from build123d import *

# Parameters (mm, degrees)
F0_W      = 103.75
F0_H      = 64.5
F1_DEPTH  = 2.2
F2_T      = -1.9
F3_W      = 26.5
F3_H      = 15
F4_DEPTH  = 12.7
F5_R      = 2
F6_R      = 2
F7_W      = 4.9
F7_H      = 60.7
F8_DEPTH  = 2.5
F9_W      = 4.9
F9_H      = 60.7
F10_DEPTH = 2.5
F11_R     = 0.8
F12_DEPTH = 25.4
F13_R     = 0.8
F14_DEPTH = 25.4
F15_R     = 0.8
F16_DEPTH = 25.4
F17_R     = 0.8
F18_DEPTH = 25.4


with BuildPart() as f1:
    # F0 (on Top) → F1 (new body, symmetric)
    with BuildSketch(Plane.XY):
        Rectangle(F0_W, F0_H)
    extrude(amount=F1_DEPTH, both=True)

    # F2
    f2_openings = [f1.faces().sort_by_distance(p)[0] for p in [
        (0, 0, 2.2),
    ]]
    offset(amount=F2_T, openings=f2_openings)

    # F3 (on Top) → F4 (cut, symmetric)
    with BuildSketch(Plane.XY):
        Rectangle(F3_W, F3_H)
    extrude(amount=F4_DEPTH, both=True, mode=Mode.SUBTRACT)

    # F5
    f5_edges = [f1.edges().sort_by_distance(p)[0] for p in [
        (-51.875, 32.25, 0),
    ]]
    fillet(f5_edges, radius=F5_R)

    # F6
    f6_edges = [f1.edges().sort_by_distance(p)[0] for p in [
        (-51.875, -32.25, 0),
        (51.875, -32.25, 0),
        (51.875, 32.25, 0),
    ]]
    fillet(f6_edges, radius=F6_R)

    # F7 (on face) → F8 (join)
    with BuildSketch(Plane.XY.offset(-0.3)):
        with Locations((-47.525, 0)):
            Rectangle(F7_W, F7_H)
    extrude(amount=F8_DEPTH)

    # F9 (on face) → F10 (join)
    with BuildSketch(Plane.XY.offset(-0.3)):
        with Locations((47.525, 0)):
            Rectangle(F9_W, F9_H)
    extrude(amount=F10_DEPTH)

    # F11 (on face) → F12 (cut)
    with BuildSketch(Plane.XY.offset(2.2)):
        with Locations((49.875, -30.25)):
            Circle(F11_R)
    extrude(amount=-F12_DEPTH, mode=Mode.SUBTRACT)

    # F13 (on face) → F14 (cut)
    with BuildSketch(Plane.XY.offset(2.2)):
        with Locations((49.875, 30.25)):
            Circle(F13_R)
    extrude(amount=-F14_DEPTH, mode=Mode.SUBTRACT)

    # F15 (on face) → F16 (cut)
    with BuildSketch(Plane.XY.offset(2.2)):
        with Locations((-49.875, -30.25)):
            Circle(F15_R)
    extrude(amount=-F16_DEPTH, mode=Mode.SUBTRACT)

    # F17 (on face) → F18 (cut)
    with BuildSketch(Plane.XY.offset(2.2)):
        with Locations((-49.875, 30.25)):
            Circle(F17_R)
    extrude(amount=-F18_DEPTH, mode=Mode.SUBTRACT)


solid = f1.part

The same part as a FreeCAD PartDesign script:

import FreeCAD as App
import Part
import Sketcher

V = App.Vector
Q = App.Units.Quantity


def edges_at(feature, points):
    """Names of the edges that pass closest to the given points."""
    edges = feature.Shape.Edges
    near = lambda p: min(range(len(edges)), key=lambda i: edges[i].distToShape(Part.Vertex(*p))[0])
    return sorted({f"Edge{near(p) + 1}" for p in points})


def faces_at(feature, points):
    """Names of the faces that lie closest to the given points."""
    faces = feature.Shape.Faces
    near = lambda p: min(range(len(faces)), key=lambda i: faces[i].distToShape(Part.Vertex(*p))[0])
    return sorted({f"Face{near(p) + 1}" for p in points})

doc = App.newDocument("Part")
params = doc.addObject("Spreadsheet::Sheet", "Params")
for row, (alias, value) in enumerate([
    ("sketch1_height", "64.5 mm"),
    ("sketch1_width", "103.75 mm"),
    ("pad1_length", "4.4 mm"),
    ("thickness_wall", "1.9 mm"),
    ("sketch2_height", "15 mm"),
    ("sketch2_width", "26.5 mm"),
    ("pocket1_length", "25.4 mm"),
    ("fillet_radius", "2 mm"),
    ("fillet2_radius", "2 mm"),
    ("sketch3_width", "4.9 mm"),
    ("sketch3_height", "60.7 mm"),
    ("pad2_length", "2.5 mm"),
    ("sketch4_width", "4.9 mm"),
    ("sketch4_height", "60.7 mm"),
    ("pad3_length", "2.5 mm"),
    ("sketch5_diameter", "1.6 mm"),
    ("pocket2_length", "25.4 mm"),
    ("sketch6_diameter", "1.6 mm"),
    ("pocket3_length", "25.4 mm"),
    ("sketch7_diameter", "1.6 mm"),
    ("pocket4_length", "25.4 mm"),
    ("sketch8_diameter", "1.6 mm"),
    ("pocket5_length", "25.4 mm"),
], start=1):
    params.set(f"A{row}", alias)
    params.set(f"B{row}", "=" + value)
    params.setAlias(f"B{row}", alias)

body = doc.addObject("PartDesign::Body", "Body")

# Sketch on XY plane
sketch1 = body.newObject("Sketcher::SketchObject", "Sketch")
sketch1.AttachmentSupport = (doc.getObject("XY_Plane"), [""])
sketch1.MapMode = "FlatFace"
sketch1.addGeometry([
    Part.LineSegment(V(-52, 32, 0), V(-52, -32, 0)),
    Part.LineSegment(V(-52, -32, 0), V(52, -32, 0)),
    Part.LineSegment(V(52, -32, 0), V(52, 32, 0)),
    Part.LineSegment(V(52, 32, 0), V(-52, 32, 0)),
], False)
sketch1.addConstraint([
    Sketcher.Constraint("Coincident", 0, 2, 1, 1),
    Sketcher.Constraint("Coincident", 1, 2, 2, 1),
    Sketcher.Constraint("Coincident", 2, 2, 3, 1),
    Sketcher.Constraint("Coincident", 3, 2, 0, 1),
    Sketcher.Constraint("Vertical", 0),
    Sketcher.Constraint("Horizontal", 1),
    Sketcher.Constraint("Vertical", 2),
    Sketcher.Constraint("Horizontal", 3),
    Sketcher.Constraint("Symmetric", 0, 2, 2, 2, -1, 1),
    Sketcher.Constraint("DistanceY", 0, 2, 0, 1, Q("64.5 mm")),
    Sketcher.Constraint("DistanceX", 1, 1, 1, 2, Q("103.75 mm")),
])
sketch1.setExpression("Constraints[9]", "Params.sketch1_height")
sketch1.setExpression("Constraints[10]", "Params.sketch1_width")
pad1 = body.newObject("PartDesign::Pad", "Pad")
pad1.Profile = sketch1
pad1.setExpression("Length", "Params.pad1_length")
pad1.Midplane = True
doc.recompute()

thickness = body.newObject("PartDesign::Thickness", "Thickness")
thickness.Base = (pad1, faces_at(pad1, [(0, 0, 2.2)]))
thickness.setExpression("Value", "Params.thickness_wall")
thickness.Reversed = True
thickness.Join = "Arc"

# Sketch on XY plane
sketch2 = body.newObject("Sketcher::SketchObject", "Sketch001")
sketch2.AttachmentSupport = (doc.getObject("XY_Plane"), [""])
sketch2.MapMode = "FlatFace"
sketch2.addGeometry([
    Part.LineSegment(V(-13, 8, 0), V(-13, -8, 0)),
    Part.LineSegment(V(-13, -8, 0), V(13, -8, 0)),
    Part.LineSegment(V(13, -8, 0), V(13, 8, 0)),
    Part.LineSegment(V(13, 8, 0), V(-13, 8, 0)),
], False)
sketch2.addConstraint([
    Sketcher.Constraint("Coincident", 0, 2, 1, 1),
    Sketcher.Constraint("Coincident", 1, 2, 2, 1),
    Sketcher.Constraint("Coincident", 2, 2, 3, 1),
    Sketcher.Constraint("Coincident", 3, 2, 0, 1),
    Sketcher.Constraint("Vertical", 0),
    Sketcher.Constraint("Horizontal", 1),
    Sketcher.Constraint("Vertical", 2),
    Sketcher.Constraint("Horizontal", 3),
    Sketcher.Constraint("Symmetric", 0, 2, 2, 2, -1, 1),
    Sketcher.Constraint("DistanceY", 0, 2, 0, 1, Q("15 mm")),
    Sketcher.Constraint("DistanceX", 1, 1, 1, 2, Q("26.5 mm")),
])
sketch2.setExpression("Constraints[9]", "Params.sketch2_height")
sketch2.setExpression("Constraints[10]", "Params.sketch2_width")
pocket1 = body.newObject("PartDesign::Pocket", "Pocket")
pocket1.Profile = sketch2
pocket1.setExpression("Length", "Params.pocket1_length")
pocket1.Midplane = True
doc.recompute()

fillet = body.newObject("PartDesign::Fillet", "Fillet")
fillet.Base = (pocket1, edges_at(pocket1, [(-51.875, 32.25, 0)]))
fillet.setExpression("Radius", "Params.fillet_radius")
doc.recompute()

fillet2 = body.newObject("PartDesign::Fillet", "Fillet001")
fillet2.Base = (fillet, edges_at(fillet, [(-51.875, -32.25, 0), (51.875, -32.25, 0), (51.875, 32.25, 0)]))
fillet2.setExpression("Radius", "Params.fillet2_radius")

# Sketch on XY plane
sketch3 = body.newObject("Sketcher::SketchObject", "Sketch002")
sketch3.AttachmentSupport = (doc.getObject("XY_Plane"), [""])
sketch3.MapMode = "FlatFace"
sketch3.AttachmentOffset = App.Placement(V(0, 0, -0.3), App.Rotation())
sketch3.addGeometry([
    Part.LineSegment(V(-50, 30.4, 0), V(-50, -30.4, 0)),
    Part.LineSegment(V(-50, -30.4, 0), V(-45.1, -30.4, 0)),
    Part.LineSegment(V(-45.1, -30.4, 0), V(-45.1, 30.4, 0)),
    Part.LineSegment(V(-45.1, 30.4, 0), V(-50, 30.4, 0)),
], False)
sketch3.addConstraint([
    Sketcher.Constraint("Coincident", 0, 2, 1, 1),
    Sketcher.Constraint("Coincident", 1, 2, 2, 1),
    Sketcher.Constraint("Coincident", 2, 2, 3, 1),
    Sketcher.Constraint("Coincident", 3, 2, 0, 1),
    Sketcher.Constraint("Vertical", 0),
    Sketcher.Constraint("Horizontal", 1),
    Sketcher.Constraint("Vertical", 2),
    Sketcher.Constraint("Horizontal", 3),
    Sketcher.Constraint("DistanceX", 1, 1, 1, 2, Q("4.9 mm")),
    Sketcher.Constraint("DistanceY", 0, 2, 0, 1, Q("60.7 mm")),
    Sketcher.Constraint("DistanceY", 0, 2, -1, 1, Q("30.35 mm")),
    Sketcher.Constraint("DistanceX", 0, 2, -1, 1, Q("49.975 mm")),
])
sketch3.setExpression("Constraints[8]", "Params.sketch3_width")
sketch3.setExpression("Constraints[9]", "Params.sketch3_height")
pad2 = body.newObject("PartDesign::Pad", "Pad001")
pad2.Profile = sketch3
pad2.setExpression("Length", "Params.pad2_length")

# Sketch on XY plane
sketch4 = body.newObject("Sketcher::SketchObject", "Sketch003")
sketch4.AttachmentSupport = (doc.getObject("XY_Plane"), [""])
sketch4.MapMode = "FlatFace"
sketch4.AttachmentOffset = App.Placement(V(0, 0, -0.3), App.Rotation())
sketch4.addGeometry([
    Part.LineSegment(V(45.1, 30.4, 0), V(45.1, -30.4, 0)),
    Part.LineSegment(V(45.1, -30.4, 0), V(50, -30.4, 0)),
    Part.LineSegment(V(50, -30.4, 0), V(50, 30.4, 0)),
    Part.LineSegment(V(50, 30.4, 0), V(45.1, 30.4, 0)),
], False)
sketch4.addConstraint([
    Sketcher.Constraint("Coincident", 0, 2, 1, 1),
    Sketcher.Constraint("Coincident", 1, 2, 2, 1),
    Sketcher.Constraint("Coincident", 2, 2, 3, 1),
    Sketcher.Constraint("Coincident", 3, 2, 0, 1),
    Sketcher.Constraint("Vertical", 0),
    Sketcher.Constraint("Horizontal", 1),
    Sketcher.Constraint("Vertical", 2),
    Sketcher.Constraint("Horizontal", 3),
    Sketcher.Constraint("DistanceX", 1, 1, 1, 2, Q("4.9 mm")),
    Sketcher.Constraint("DistanceY", 0, 2, 0, 1, Q("60.7 mm")),
    Sketcher.Constraint("DistanceY", 0, 2, -1, 1, Q("30.35 mm")),
    Sketcher.Constraint("DistanceX", -1, 1, 0, 2, Q("45.075 mm")),
])
sketch4.setExpression("Constraints[8]", "Params.sketch4_width")
sketch4.setExpression("Constraints[9]", "Params.sketch4_height")
pad3 = body.newObject("PartDesign::Pad", "Pad002")
pad3.Profile = sketch4
pad3.setExpression("Length", "Params.pad3_length")

# Sketch on XY plane
sketch5 = body.newObject("Sketcher::SketchObject", "Sketch004")
sketch5.AttachmentSupport = (doc.getObject("XY_Plane"), [""])
sketch5.MapMode = "FlatFace"
sketch5.AttachmentOffset = App.Placement(V(0, 0, 2.2), App.Rotation())
sketch5.addGeometry(Part.Circle(V(49.9, -30.2, 0), V(0, 0, 1), 0.8), False)
sketch5.addConstraint([
    Sketcher.Constraint("Diameter", 0, Q("1.6 mm")),
    Sketcher.Constraint("DistanceY", 0, 3, -1, 1, Q("30.25 mm")),
    Sketcher.Constraint("DistanceX", -1, 1, 0, 3, Q("49.875 mm")),
])
sketch5.setExpression("Constraints[0]", "Params.sketch5_diameter")
pocket2 = body.newObject("PartDesign::Pocket", "Pocket001")
pocket2.Profile = sketch5
pocket2.setExpression("Length", "Params.pocket2_length")

# Sketch on XY plane
sketch6 = body.newObject("Sketcher::SketchObject", "Sketch005")
sketch6.AttachmentSupport = (doc.getObject("XY_Plane"), [""])
sketch6.MapMode = "FlatFace"
sketch6.AttachmentOffset = App.Placement(V(0, 0, 2.2), App.Rotation())
sketch6.addGeometry(Part.Circle(V(49.9, 30.2, 0), V(0, 0, 1), 0.8), False)
sketch6.addConstraint([
    Sketcher.Constraint("Diameter", 0, Q("1.6 mm")),
    Sketcher.Constraint("DistanceY", -1, 1, 0, 3, Q("30.25 mm")),
    Sketcher.Constraint("DistanceX", -1, 1, 0, 3, Q("49.875 mm")),
])
sketch6.setExpression("Constraints[0]", "Params.sketch6_diameter")
pocket3 = body.newObject("PartDesign::Pocket", "Pocket002")
pocket3.Profile = sketch6
pocket3.setExpression("Length", "Params.pocket3_length")

# Sketch on XY plane
sketch7 = body.newObject("Sketcher::SketchObject", "Sketch006")
sketch7.AttachmentSupport = (doc.getObject("XY_Plane"), [""])
sketch7.MapMode = "FlatFace"
sketch7.AttachmentOffset = App.Placement(V(0, 0, 2.2), App.Rotation())
sketch7.addGeometry(Part.Circle(V(-49.9, -30.2, 0), V(0, 0, 1), 0.8), False)
sketch7.addConstraint([
    Sketcher.Constraint("Diameter", 0, Q("1.6 mm")),
    Sketcher.Constraint("DistanceY", 0, 3, -1, 1, Q("30.25 mm")),
    Sketcher.Constraint("DistanceX", 0, 3, -1, 1, Q("49.875 mm")),
])
sketch7.setExpression("Constraints[0]", "Params.sketch7_diameter")
pocket4 = body.newObject("PartDesign::Pocket", "Pocket003")
pocket4.Profile = sketch7
pocket4.setExpression("Length", "Params.pocket4_length")

# Sketch on XY plane
sketch8 = body.newObject("Sketcher::SketchObject", "Sketch007")
sketch8.AttachmentSupport = (doc.getObject("XY_Plane"), [""])
sketch8.MapMode = "FlatFace"
sketch8.AttachmentOffset = App.Placement(V(0, 0, 2.2), App.Rotation())
sketch8.addGeometry(Part.Circle(V(-49.9, 30.2, 0), V(0, 0, 1), 0.8), False)
sketch8.addConstraint([
    Sketcher.Constraint("Diameter", 0, Q("1.6 mm")),
    Sketcher.Constraint("DistanceY", -1, 1, 0, 3, Q("30.25 mm")),
    Sketcher.Constraint("DistanceX", 0, 3, -1, 1, Q("49.875 mm")),
])
sketch8.setExpression("Constraints[0]", "Params.sketch8_diameter")
pocket5 = body.newObject("PartDesign::Pocket", "Pocket004")
pocket5.Profile = sketch8
pocket5.setExpression("Length", "Params.pocket5_length")

doc.recompute()
